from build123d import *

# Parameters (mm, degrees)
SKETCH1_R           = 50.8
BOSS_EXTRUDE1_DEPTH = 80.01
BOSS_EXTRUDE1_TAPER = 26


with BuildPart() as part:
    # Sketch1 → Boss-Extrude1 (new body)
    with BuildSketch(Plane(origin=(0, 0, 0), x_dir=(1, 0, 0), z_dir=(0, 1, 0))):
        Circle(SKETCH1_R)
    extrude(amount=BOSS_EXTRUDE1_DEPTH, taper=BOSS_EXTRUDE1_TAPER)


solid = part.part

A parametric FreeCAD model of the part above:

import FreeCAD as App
import Part
import Sketcher
Q = App.Units.Quantity

doc = App.newDocument("Part")
body = doc.addObject("PartDesign::Body", "Body")

sketch1 = doc.addObject("Sketcher::SketchObject", "Sketch")
body.addObject(sketch1)
sketch1.AttachmentSupport = (doc.XZ_Plane, [""])
sketch1.MapMode = "FlatFace"
sketch1.addGeometry(Part.Circle(App.Vector(0, 0, 0), App.Vector(0, 0, 1), 51), False)
sketch1.addConstraint(Sketcher.Constraint("Coincident", 0, 3, -1, 1))
sketch1.addConstraint(Sketcher.Constraint("Diameter", 0, Q("4 in")))
pad1 = doc.addObject("PartDesign::Pad", "Pad")
body.addObject(pad1)
pad1.Profile = sketch1
pad1.Length = Q("3.15 in")
pad1.Reversed = True
pad1.TaperAngle = -26

doc.recompute()
